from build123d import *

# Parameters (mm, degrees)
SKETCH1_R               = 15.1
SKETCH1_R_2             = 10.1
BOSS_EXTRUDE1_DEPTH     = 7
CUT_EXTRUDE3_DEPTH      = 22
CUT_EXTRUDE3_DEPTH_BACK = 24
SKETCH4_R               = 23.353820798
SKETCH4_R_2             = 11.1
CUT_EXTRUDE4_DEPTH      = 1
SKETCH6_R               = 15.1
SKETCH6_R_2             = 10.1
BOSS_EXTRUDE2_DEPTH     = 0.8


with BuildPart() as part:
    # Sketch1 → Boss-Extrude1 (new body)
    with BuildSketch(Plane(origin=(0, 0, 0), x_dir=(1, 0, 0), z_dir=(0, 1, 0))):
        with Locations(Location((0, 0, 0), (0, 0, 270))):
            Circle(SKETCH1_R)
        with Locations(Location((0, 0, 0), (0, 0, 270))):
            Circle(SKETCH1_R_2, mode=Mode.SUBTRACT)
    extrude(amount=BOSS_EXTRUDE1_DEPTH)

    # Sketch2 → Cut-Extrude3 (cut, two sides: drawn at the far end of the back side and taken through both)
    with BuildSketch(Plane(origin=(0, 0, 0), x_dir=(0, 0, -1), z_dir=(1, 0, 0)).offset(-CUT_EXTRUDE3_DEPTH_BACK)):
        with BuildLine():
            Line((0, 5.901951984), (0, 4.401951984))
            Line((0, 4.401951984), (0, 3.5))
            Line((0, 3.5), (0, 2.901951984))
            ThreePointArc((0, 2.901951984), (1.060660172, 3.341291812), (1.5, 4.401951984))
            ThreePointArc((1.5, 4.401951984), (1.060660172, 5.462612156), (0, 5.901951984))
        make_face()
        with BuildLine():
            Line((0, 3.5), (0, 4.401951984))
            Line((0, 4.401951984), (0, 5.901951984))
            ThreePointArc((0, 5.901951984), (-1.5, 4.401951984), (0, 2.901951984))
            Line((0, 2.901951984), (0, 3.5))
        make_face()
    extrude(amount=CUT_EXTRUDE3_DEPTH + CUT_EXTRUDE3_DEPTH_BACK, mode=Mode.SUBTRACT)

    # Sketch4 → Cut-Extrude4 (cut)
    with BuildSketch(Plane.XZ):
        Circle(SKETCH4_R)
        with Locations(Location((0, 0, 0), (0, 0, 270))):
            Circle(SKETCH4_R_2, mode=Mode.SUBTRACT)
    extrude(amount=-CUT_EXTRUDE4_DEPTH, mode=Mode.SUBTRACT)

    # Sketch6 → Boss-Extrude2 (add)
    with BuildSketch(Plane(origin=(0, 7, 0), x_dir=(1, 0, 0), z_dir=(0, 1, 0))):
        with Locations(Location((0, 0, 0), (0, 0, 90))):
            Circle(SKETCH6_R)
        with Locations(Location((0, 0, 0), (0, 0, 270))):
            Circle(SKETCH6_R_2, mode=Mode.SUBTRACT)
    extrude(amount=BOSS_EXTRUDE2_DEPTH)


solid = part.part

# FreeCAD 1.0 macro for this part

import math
import FreeCAD as App
import Part
import Sketcher

V = App.Vector
Q = App.Units.Quantity

doc = App.newDocument("Part")
body = doc.addObject("PartDesign::Body", "Body")

# Sketch on XZ plane
sketch1 = body.newObject("Sketcher::SketchObject", "Sketch")
sketch1.AttachmentSupport = (doc.getObject("XZ_Plane"), [""])
sketch1.MapMode = "FlatFace"
sketch1.addGeometry([
    Part.Circle(V(0, 0, 0), V(0, 0, 1), 15.1),
    Part.Circle(V(0, 0, 0), V(0, 0, 1), 10.1),
], False)
sketch1.addConstraint([
    Sketcher.Constraint("Coincident", 0, 3, -1, 1),
    Sketcher.Constraint("Coincident", 1, 3, -1, 1),
    Sketcher.Constraint("Diameter", 0, Q("30.2 mm")),
    Sketcher.Constraint("Diameter", 1, Q("20.2 mm")),
])
pad1 = body.newObject("PartDesign::Pad", "Pad")
pad1.Profile = sketch1
pad1.Length = 7
pad1.Reversed = True

# Sketch on YZ plane
sketch2 = body.newObject("Sketcher::SketchObject", "Sketch001")
sketch2.AttachmentSupport = (doc.getObject("YZ_Plane"), [""])
sketch2.MapMode = "FlatFace"
sketch2.addGeometry([
    Part.ArcOfCircle(Part.Circle(V(4.401952, 0, 0), V(0, 0, 1), 1.5), math.radians(180), math.radians(270)),
    Part.ArcOfCircle(Part.Circle(V(4.401952, 0, 0), V(0, 0, 1), 1.5), math.radians(-90), math.radians(0)),
    Part.ArcOfCircle(Part.Circle(V(4.401952, 0, 0), V(0, 0, 1), 1.5), math.radians(0), math.radians(180)),
], False)
sketch2.addConstraint([
    Sketcher.Constraint("Tangent", 0, 2, 1, 1),
    Sketcher.Constraint("Tangent", 1, 2, 2, 1),
    Sketcher.Constraint("Tangent", 2, 2, 0, 1),
    Sketcher.Constraint("PointOnObject", 0, 3, -1),
    Sketcher.Constraint("PointOnObject", 1, 2, -1),
    Sketcher.Constraint("PointOnObject", 2, 2, -1),
    Sketcher.Constraint("Vertical", 2, 3, 0, 2),
    Sketcher.Constraint("Radius", 0, Q("1.5 mm")),
    Sketcher.Constraint("DistanceX", -1, 1, 0, 3, Q("4.401952 mm")),
])
pocket1 = body.newObject("PartDesign::Pocket", "Pocket")
pocket1.Profile = sketch2
pocket1.Type = "ThroughAll"
pocket1.Midplane = True

# Sketch on XZ plane
sketch3 = body.newObject("Sketcher::SketchObject", "Sketch002")
sketch3.AttachmentSupport = (doc.getObject("XZ_Plane"), [""])
sketch3.MapMode = "FlatFace"
sketch3.addGeometry([
    Part.Circle(V(0, 0, 0), V(0, 0, 1), 23.353821),
    Part.Circle(V(0, 0, 0), V(0, 0, 1), 11.1),
], False)
sketch3.addConstraint([
    Sketcher.Constraint("Coincident", 0, 3, -1, 1),
    Sketcher.Constraint("Coincident", 1, 3, -1, 1),
    Sketcher.Constraint("Diameter", 1, Q("22.2 mm")),
    Sketcher.Constraint("Diameter", 0, Q("46.707642 mm")),
])
pocket2 = body.newObject("PartDesign::Pocket", "Pocket001")
pocket2.Profile = sketch3
pocket2.Length = 1

# Sketch on XZ plane
sketch4 = body.newObject("Sketcher::SketchObject", "Sketch003")
sketch4.AttachmentSupport = (doc.getObject("XZ_Plane"), [""])
sketch4.MapMode = "FlatFace"
sketch4.AttachmentOffset = App.Placement(V(0, 0, -7), App.Rotation())
sketch4.addGeometry([
    Part.Circle(V(0, 0, 0), V(0, 0, 1), 15.1),
    Part.Circle(V(0, 0, 0), V(0, 0, 1), 10.1),
], False)
sketch4.addConstraint([
    Sketcher.Constraint("Coincident", 0, 3, -1, 1),
    Sketcher.Constraint("Coincident", 1, 3, -1, 1),
    Sketcher.Constraint("Diameter", 0, Q("30.2 mm")),
    Sketcher.Constraint("Diameter", 1, Q("20.2 mm")),
])
pad2 = body.newObject("PartDesign::Pad", "Pad001")
pad2.Profile = sketch4
pad2.Length = 0.8
pad2.Reversed = True

doc.recompute()
